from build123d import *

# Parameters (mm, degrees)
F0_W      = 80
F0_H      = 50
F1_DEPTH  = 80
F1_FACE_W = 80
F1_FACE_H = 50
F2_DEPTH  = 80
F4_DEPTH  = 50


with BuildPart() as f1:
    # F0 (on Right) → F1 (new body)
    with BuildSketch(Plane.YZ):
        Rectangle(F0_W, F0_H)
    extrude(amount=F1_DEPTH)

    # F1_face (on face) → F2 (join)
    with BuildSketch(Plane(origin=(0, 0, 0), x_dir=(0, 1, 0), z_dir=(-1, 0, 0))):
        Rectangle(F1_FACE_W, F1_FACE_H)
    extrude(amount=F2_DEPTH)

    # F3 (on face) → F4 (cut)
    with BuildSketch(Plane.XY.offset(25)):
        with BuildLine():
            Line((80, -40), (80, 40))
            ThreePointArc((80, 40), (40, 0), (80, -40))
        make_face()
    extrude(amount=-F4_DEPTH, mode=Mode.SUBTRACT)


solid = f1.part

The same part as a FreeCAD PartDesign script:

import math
import FreeCAD as App
import Part
import Sketcher

V = App.Vector
Q = App.Units.Quantity

doc = App.newDocument("Part")
params = doc.addObject("Spreadsheet::Sheet", "Params")
for row, (alias, value) in enumerate([
    ("sketch1_width", "80 mm"),
    ("sketch1_height", "50 mm"),
    ("pad1_length", "80 mm"),
    ("sketch2_width", "80 mm"),
    ("sketch2_height", "50 mm"),
    ("pad2_length", "80 mm"),
    ("sketch3_radius", "40 mm"),
    ("pocket1_length", "50 mm"),
], start=1):
    params.set(f"A{row}", alias)
    params.set(f"B{row}", "=" + value)
    params.setAlias(f"B{row}", alias)

body = doc.addObject("PartDesign::Body", "Body")

sketch1 = body.newObject("Sketcher::SketchObject", "Sketch")
sketch1.AttachmentSupport = (doc.getObject("YZ_Plane"), [""])
sketch1.MapMode = "FlatFace"
sketch1.addGeometry([
    Part.LineSegment(V(-40, 25, 0), V(-40, -25, 0)),
    Part.LineSegment(V(-40, -25, 0), V(40, -25, 0)),
    Part.LineSegment(V(40, -25, 0), V(40, 25, 0)),
    Part.LineSegment(V(40, 25, 0), V(-40, 25, 0)),
], False)
sketch1.addConstraint([
    Sketcher.Constraint("Coincident", 0, 2, 1, 1),
    Sketcher.Constraint("Coincident", 1, 2, 2, 1),
    Sketcher.Constraint("Coincident", 2, 2, 3, 1),
    Sketcher.Constraint("Coincident", 3, 2, 0, 1),
    Sketcher.Constraint("Vertical", 0),
    Sketcher.Constraint("Horizontal", 1),
    Sketcher.Constraint("Vertical", 2),
    Sketcher.Constraint("Horizontal", 3),
    Sketcher.Constraint("Symmetric", 0, 2, 2, 2, -1, 1),
    Sketcher.Constraint("DistanceX", 1, 1, 1, 2, Q("80 mm")),
    Sketcher.Constraint("DistanceY", 0, 2, 0, 1, Q("50 mm")),
])
sketch1.setExpression("Constraints[9]", "Params.sketch1_width")
sketch1.setExpression("Constraints[10]", "Params.sketch1_height")
pad1 = body.newObject("PartDesign::Pad", "Pad")
pad1.Profile = sketch1
pad1.setExpression("Length", "Params.pad1_length")

sketch2 = body.newObject("Sketcher::SketchObject", "Sketch001")
sketch2.AttachmentSupport = (doc.getObject("YZ_Plane"), [""])
sketch2.MapMode = "FlatFace"
sketch2.addGeometry([
    Part.LineSegment(V(-40, -25, 0), V(-40, 25, 0)),
    Part.LineSegment(V(-40, 25, 0), V(40, 25, 0)),
    Part.LineSegment(V(40, 25, 0), V(40, -25, 0)),
    Part.LineSegment(V(40, -25, 0), V(-40, -25, 0)),
], False)
sketch2.addConstraint([
    Sketcher.Constraint("Coincident", 0, 2, 1, 1),
    Sketcher.Constraint("Coincident", 1, 2, 2, 1),
    Sketcher.Constraint("Coincident", 2, 2, 3, 1),
    Sketcher.Constraint("Coincident", 3, 2, 0, 1),
    Sketcher.Constraint("Vertical", 0),
    Sketcher.Constraint("Horizontal", 1),
    Sketcher.Constraint("Vertical", 2),
    Sketcher.Constraint("Horizontal", 3),
    Sketcher.Constraint("Symmetric", 0, 2, 2, 2, -1, 1),
    Sketcher.Constraint("DistanceX", 1, 1, 1, 2, Q("80 mm")),
    Sketcher.Constraint("DistanceY", 0, 1, 0, 2, Q("50 mm")),
])
sketch2.setExpression("Constraints[9]", "Params.sketch2_width")
sketch2.setExpression("Constraints[10]", "Params.sketch2_height")
pad2 = body.newObject("PartDesign::Pad", "Pad001")
pad2.Profile = sketch2
pad2.setExpression("Length", "Params.pad2_length")
pad2.Reversed = True

sketch3 = body.newObject("Sketcher::SketchObject", "Sketch002")
sketch3.AttachmentSupport = (doc.getObject("XY_Plane"), [""])
sketch3.MapMode = "FlatFace"
sketch3.AttachmentOffset = App.Placement(V(0, 0, 25), App.Rotation())
sketch3.addGeometry([
    Part.LineSegment(V(80, -40, 0), V(80, 40, 0)),
    Part.ArcOfCircle(Part.Circle(V(80, 0, 0), V(0, 0, 1), 40), math.radians(90), math.radians(270)),
], False)
sketch3.addConstraint([
    Sketcher.Constraint("Coincident", 0, 1, 1, 2),
    Sketcher.Constraint("Coincident", 1, 1, 0, 2),
    Sketcher.Constraint("Vertical", 0),
    Sketcher.Constraint("PointOnObject", 1, 3, -1),
    Sketcher.Constraint("Vertical", 1, 3, 0, 1),
    Sketcher.Constraint("Radius", 1, Q("40 mm")),
    Sketcher.Constraint("DistanceX", -1, 1, 1, 3, Q("80 mm")),
])
sketch3.setExpression("Constraints[5]", "Params.sketch3_radius")
pocket1 = body.newObject("PartDesign::Pocket", "Pocket")
pocket1.Profile = sketch3
pocket1.setExpression("Length", "Params.pocket1_length")

doc.recompute()
